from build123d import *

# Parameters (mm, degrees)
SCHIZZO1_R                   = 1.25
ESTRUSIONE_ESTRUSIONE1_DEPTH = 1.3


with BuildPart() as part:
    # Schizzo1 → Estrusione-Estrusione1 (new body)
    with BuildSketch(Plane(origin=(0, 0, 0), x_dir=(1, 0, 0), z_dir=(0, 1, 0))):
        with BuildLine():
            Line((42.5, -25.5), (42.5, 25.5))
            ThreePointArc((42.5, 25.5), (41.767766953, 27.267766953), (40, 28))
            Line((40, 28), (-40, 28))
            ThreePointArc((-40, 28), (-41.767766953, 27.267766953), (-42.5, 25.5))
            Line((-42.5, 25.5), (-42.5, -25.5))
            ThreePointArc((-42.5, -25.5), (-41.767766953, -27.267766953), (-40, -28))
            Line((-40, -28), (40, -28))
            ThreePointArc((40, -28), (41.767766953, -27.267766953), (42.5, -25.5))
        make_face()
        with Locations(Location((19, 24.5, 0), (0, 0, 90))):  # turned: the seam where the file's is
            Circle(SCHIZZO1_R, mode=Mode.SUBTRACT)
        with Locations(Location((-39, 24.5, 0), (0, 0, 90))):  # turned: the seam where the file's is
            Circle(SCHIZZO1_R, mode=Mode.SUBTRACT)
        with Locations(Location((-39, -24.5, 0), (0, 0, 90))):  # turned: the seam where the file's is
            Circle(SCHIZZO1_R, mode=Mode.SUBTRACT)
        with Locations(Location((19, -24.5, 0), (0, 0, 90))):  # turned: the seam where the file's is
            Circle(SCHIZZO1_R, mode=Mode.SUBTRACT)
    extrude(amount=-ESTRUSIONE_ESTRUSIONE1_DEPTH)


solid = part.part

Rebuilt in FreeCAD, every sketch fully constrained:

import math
import FreeCAD as App
import Part
import Sketcher
from FreeCAD import Vector

doc = App.newDocument("Part")
params = doc.addObject("Spreadsheet::Sheet", "Params")
for row, (alias, value) in enumerate([
    ("sketch1_diameter", "2.5 mm"),
    ("sketch1_radius", "2.5 mm"),
    ("sketch1_width", "80 mm"),
    ("sketch1_height", "51 mm"),
    ("pad1_length", "1.3 mm"),
], start=1):
    params.set(f"A{row}", alias)
    params.set(f"B{row}", "=" + value)
    params.setAlias(f"B{row}", alias)

body = doc.addObject("PartDesign::Body", "Body")

# Sketch on XZ plane
sketch1 = doc.addObject("Sketcher::SketchObject", "Sketch")
body.addObject(sketch1)
sketch1.AttachmentSupport = (doc.XZ_Plane, [""])
sketch1.MapMode = "FlatFace"
sketch1.addGeometry([
    Part.LineSegment(Vector(42.5, 25.5, 0), Vector(42.5, -25.5, 0)),  # 0
    Part.ArcOfCircle(Part.Circle(Vector(40, -25.5, 0), Vector(0, 0, 1), 2.5), math.radians(-90), math.radians(0)),  # 1
    Part.LineSegment(Vector(40, -28, 0), Vector(-40, -28, 0)),  # 2
    Part.ArcOfCircle(Part.Circle(Vector(-40, -25.5, 0), Vector(0, 0, 1), 2.5), math.radians(180), math.radians(270)),  # 3
    Part.LineSegment(Vector(-42.5, -25.5, 0), Vector(-42.5, 25.5, 0)),  # 4
    Part.ArcOfCircle(Part.Circle(Vector(-40, 25.5, 0), Vector(0, 0, 1), 2.5), math.radians(90), math.radians(180)),  # 5
    Part.LineSegment(Vector(-40, 28, 0), Vector(40, 28, 0)),  # 6
    Part.ArcOfCircle(Part.Circle(Vector(40, 25.5, 0), Vector(0, 0, 1), 2.5), math.radians(0), math.radians(90)),  # 7
    Part.Circle(Vector(-39, 24.5, 0), Vector(0, 0, 1), 1.25),  # 8
    Part.Circle(Vector(19, 24.5, 0), Vector(0, 0, 1), 1.25),  # 9
    Part.Circle(Vector(-39, -24.5, 0), Vector(0, 0, 1), 1.25),  # 10
    Part.Circle(Vector(19, -24.5, 0), Vector(0, 0, 1), 1.25),  # 11
], False)
sketch1.addConstraint([
    Sketcher.Constraint("Tangent", 0, 2, 1, 2),
    Sketcher.Constraint("Tangent", 1, 1, 2, 1),
    Sketcher.Constraint("Tangent", 2, 2, 3, 2),
    Sketcher.Constraint("Tangent", 3, 1, 4, 1),
    Sketcher.Constraint("Tangent", 4, 2, 5, 2),
    Sketcher.Constraint("Tangent", 5, 1, 6, 1),
    Sketcher.Constraint("Tangent", 6, 2, 7, 2),
    Sketcher.Constraint("Tangent", 7, 1, 0, 1),
    Sketcher.Constraint("Vertical", 0),
    Sketcher.Constraint("Horizontal", 2),
    Sketcher.Constraint("Vertical", 4),
    Sketcher.Constraint("Horizontal", 6),
    Sketcher.Constraint("Equal", 1, 3),
    Sketcher.Constraint("Equal", 3, 5),
    Sketcher.Constraint("Equal", 5, 7),
    Sketcher.Constraint("Equal", 8, 9),
    Sketcher.Constraint("Equal", 9, 10),
    Sketcher.Constraint("Equal", 10, 11),
    Sketcher.Constraint("Symmetric", 1, 3, 5, 3, -1, 1),
    Sketcher.Constraint("Symmetric", 8, 3, 10, 3, -1),
    Sketcher.Constraint("Symmetric", 9, 3, 11, 3, -1),
    Sketcher.Constraint("Horizontal", 8, 3, 9, 3),
    Sketcher.Constraint("Diameter", 8, 2.5),
    Sketcher.Constraint("Radius", 1, 2.5),
    Sketcher.Constraint("DistanceX", 2, 2, 2, 1, 80.0),
    Sketcher.Constraint("DistanceY", 0, 2, 0, 1, 51.0),
    Sketcher.Constraint("DistanceX", 8, 3, -1, 1, 39.0),
    Sketcher.Constraint("DistanceX", -1, 1, 9, 3, 19.0),
    Sketcher.Constraint("DistanceY", 8, 3, 5, 3, 1.0),
])
sketch1.setExpression("Constraints[22]", "Params.sketch1_diameter")
sketch1.setExpression("Constraints[23]", "Params.sketch1_radius")
sketch1.setExpression("Constraints[24]", "Params.sketch1_width")
sketch1.setExpression("Constraints[25]", "Params.sketch1_height")
pad1 = doc.addObject("PartDesign::Pad", "Pad")
body.addObject(pad1)
pad1.Profile = sketch1
pad1.setExpression("Length", "Params.pad1_length")

doc.recompute()
